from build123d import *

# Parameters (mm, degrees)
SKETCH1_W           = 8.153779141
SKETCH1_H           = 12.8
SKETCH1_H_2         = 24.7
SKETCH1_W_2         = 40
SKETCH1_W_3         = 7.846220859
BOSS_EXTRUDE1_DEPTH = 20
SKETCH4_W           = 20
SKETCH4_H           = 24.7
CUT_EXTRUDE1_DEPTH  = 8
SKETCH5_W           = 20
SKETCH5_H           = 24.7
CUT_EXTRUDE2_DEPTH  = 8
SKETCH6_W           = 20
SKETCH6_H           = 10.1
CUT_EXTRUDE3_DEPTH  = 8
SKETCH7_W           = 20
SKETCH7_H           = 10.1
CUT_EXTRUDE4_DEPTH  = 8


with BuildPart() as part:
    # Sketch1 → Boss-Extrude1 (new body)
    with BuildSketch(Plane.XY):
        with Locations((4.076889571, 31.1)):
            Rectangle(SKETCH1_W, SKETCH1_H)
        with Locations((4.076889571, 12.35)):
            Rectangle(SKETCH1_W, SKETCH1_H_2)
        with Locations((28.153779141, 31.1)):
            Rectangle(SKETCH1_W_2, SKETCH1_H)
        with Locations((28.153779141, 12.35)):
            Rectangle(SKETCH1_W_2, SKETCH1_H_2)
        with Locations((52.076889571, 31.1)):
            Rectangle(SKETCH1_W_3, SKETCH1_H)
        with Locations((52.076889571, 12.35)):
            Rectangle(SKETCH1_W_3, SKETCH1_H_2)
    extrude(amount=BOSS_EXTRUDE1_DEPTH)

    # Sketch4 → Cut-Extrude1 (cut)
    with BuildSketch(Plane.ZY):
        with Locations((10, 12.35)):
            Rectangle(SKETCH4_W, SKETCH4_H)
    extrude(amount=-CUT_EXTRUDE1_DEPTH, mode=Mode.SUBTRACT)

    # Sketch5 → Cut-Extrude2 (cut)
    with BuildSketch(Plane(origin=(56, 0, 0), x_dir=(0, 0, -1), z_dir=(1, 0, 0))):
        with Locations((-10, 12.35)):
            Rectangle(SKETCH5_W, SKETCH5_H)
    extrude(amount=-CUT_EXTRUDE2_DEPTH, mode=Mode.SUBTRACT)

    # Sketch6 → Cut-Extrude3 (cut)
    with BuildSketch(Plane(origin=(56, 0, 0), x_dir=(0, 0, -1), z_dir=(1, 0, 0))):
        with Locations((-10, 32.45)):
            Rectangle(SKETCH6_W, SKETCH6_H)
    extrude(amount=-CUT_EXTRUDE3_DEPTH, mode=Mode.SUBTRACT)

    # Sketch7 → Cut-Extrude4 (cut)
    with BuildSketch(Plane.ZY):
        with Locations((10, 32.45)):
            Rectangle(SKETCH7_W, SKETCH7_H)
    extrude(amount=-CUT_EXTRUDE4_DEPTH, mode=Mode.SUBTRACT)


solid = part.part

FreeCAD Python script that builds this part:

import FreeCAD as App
import Part
import Sketcher

V = App.Vector
Q = App.Units.Quantity


def add_polygon(sketch, points):
    """Adds a closed chain of lines whose ends are joined by coincident constraints."""
    first, n = sketch.GeometryCount, len(points)
    for a, b in zip(points, points[1:] + points[:1]):
        sketch.addGeometry(Part.LineSegment(App.Vector(*a, 0), App.Vector(*b, 0)), False)
    for i in range(n):
        sketch.addConstraint(Sketcher.Constraint("Coincident", first + i, 2, first + (i + 1) % n, 1))

doc = App.newDocument("Part")
body = doc.addObject("PartDesign::Body", "Body")

# Sketch on XY plane
sketch1 = body.newObject("Sketcher::SketchObject", "Sketch")
sketch1.AttachmentSupport = (doc.getObject("XY_Plane"), [""])
sketch1.MapMode = "FlatFace"
add_polygon(sketch1, [(0, 38), (0, 0), (56, 0), (56, 38)])  # lines 0-3
sketch1.addConstraint(Sketcher.Constraint("Vertical", 0))
sketch1.addConstraint(Sketcher.Constraint("Horizontal", 1))
sketch1.addConstraint(Sketcher.Constraint("Vertical", 2))
sketch1.addConstraint(Sketcher.Constraint("Horizontal", 3))
sketch1.addConstraint(Sketcher.Constraint("Coincident", 0, 2, -1, 1))
sketch1.addConstraint(Sketcher.Constraint("DistanceX", 1, 1, 1, 2, Q("56 mm")))
sketch1.addConstraint(Sketcher.Constraint("DistanceY", 0, 2, 0, 1, Q("37.5 mm")))
pad1 = body.newObject("PartDesign::Pad", "Pad")
pad1.Profile = sketch1
pad1.Length = 20

# Sketch on YZ plane
sketch2 = body.newObject("Sketcher::SketchObject", "Sketch001")
sketch2.AttachmentSupport = (doc.getObject("YZ_Plane"), [""])
sketch2.MapMode = "FlatFace"
add_polygon(sketch2, [(25, 0), (0, 0), (0, 20), (25, 20)])  # lines 0-3
sketch2.addConstraint(Sketcher.Constraint("Horizontal", 0))
sketch2.addConstraint(Sketcher.Constraint("Vertical", 1))
sketch2.addConstraint(Sketcher.Constraint("Horizontal", 2))
sketch2.addConstraint(Sketcher.Constraint("Vertical", 3))
sketch2.addConstraint(Sketcher.Constraint("Coincident", 0, 2, -1, 1))
sketch2.addConstraint(Sketcher.Constraint("DistanceY", 1, 1, 1, 2, Q("20 mm")))
sketch2.addConstraint(Sketcher.Constraint("DistanceX", 0, 2, 0, 1, Q("24.7 mm")))
pocket1 = body.newObject("PartDesign::Pocket", "Pocket")
pocket1.Profile = sketch2
pocket1.Length = 8
pocket1.Reversed = True

# Sketch on YZ plane
sketch3 = body.newObject("Sketcher::SketchObject", "Sketch002")
sketch3.AttachmentSupport = (doc.getObject("YZ_Plane"), [""])
sketch3.MapMode = "FlatFace"
sketch3.AttachmentOffset = App.Placement(V(0, 0, 56), App.Rotation())
add_polygon(sketch3, [(25, 20), (0, 20), (0, 0), (25, 0)])  # lines 0-3
sketch3.addConstraint(Sketcher.Constraint("Horizontal", 0))
sketch3.addConstraint(Sketcher.Constraint("Vertical", 1))
sketch3.addConstraint(Sketcher.Constraint("Horizontal", 2))
sketch3.addConstraint(Sketcher.Constraint("Vertical", 3))
sketch3.addConstraint(Sketcher.Constraint("Coincident", 1, 2, -1, 1))
sketch3.addConstraint(Sketcher.Constraint("DistanceY", 1, 2, 1, 1, Q("20 mm")))
sketch3.addConstraint(Sketcher.Constraint("DistanceX", 0, 2, 0, 1, Q("24.7 mm")))
pocket2 = body.newObject("PartDesign::Pocket", "Pocket001")
pocket2.Profile = sketch3
pocket2.Length = 8

# Sketch on YZ plane
sketch4 = body.newObject("Sketcher::SketchObject", "Sketch003")
sketch4.AttachmentSupport = (doc.getObject("YZ_Plane"), [""])
sketch4.MapMode = "FlatFace"
sketch4.AttachmentOffset = App.Placement(V(0, 0, 56), App.Rotation())
add_polygon(sketch4, [(38, 20), (27, 20), (27, 0), (38, 0)])  # lines 0-3
sketch4.addConstraint(Sketcher.Constraint("Horizontal", 0))
sketch4.addConstraint(Sketcher.Constraint("Vertical", 1))
sketch4.addConstraint(Sketcher.Constraint("Horizontal", 2))
sketch4.addConstraint(Sketcher.Constraint("Vertical", 3))
sketch4.addConstraint(Sketcher.Constraint("PointOnObject", 1, 2, -1))
sketch4.addConstraint(Sketcher.Constraint("DistanceY", 1, 2, 1, 1, Q("20 mm")))
sketch4.addConstraint(Sketcher.Constraint("DistanceX", 0, 2, 0, 1, Q("10.1 mm")))
sketch4.addConstraint(Sketcher.Constraint("DistanceX", -1, 1, 0, 2, Q("27.4 mm")))
pocket3 = body.newObject("PartDesign::Pocket", "Pocket002")
pocket3.Profile = sketch4
pocket3.Length = 8

# Sketch on YZ plane
sketch5 = body.newObject("Sketcher::SketchObject", "Sketch004")
sketch5.AttachmentSupport = (doc.getObject("YZ_Plane"), [""])
sketch5.MapMode = "FlatFace"
add_polygon(sketch5, [(38, 0), (27, 0), (27, 20), (38, 20)])  # lines 0-3
sketch5.addConstraint(Sketcher.Constraint("Horizontal", 0))
sketch5.addConstraint(Sketcher.Constraint("Vertical", 1))
sketch5.addConstraint(Sketcher.Constraint("Horizontal", 2))
sketch5.addConstraint(Sketcher.Constraint("Vertical", 3))
sketch5.addConstraint(Sketcher.Constraint("PointOnObject", 0, 2, -1))
sketch5.addConstraint(Sketcher.Constraint("DistanceY", 1, 1, 1, 2, Q("20 mm")))
sketch5.addConstraint(Sketcher.Constraint("DistanceX", 0, 2, 0, 1, Q("10.1 mm")))
sketch5.addConstraint(Sketcher.Constraint("DistanceX", -1, 1, 0, 2, Q("27.4 mm")))
pocket4 = body.newObject("PartDesign::Pocket", "Pocket003")
pocket4.Profile = sketch5
pocket4.Length = 8
pocket4.Reversed = True

doc.recompute()
